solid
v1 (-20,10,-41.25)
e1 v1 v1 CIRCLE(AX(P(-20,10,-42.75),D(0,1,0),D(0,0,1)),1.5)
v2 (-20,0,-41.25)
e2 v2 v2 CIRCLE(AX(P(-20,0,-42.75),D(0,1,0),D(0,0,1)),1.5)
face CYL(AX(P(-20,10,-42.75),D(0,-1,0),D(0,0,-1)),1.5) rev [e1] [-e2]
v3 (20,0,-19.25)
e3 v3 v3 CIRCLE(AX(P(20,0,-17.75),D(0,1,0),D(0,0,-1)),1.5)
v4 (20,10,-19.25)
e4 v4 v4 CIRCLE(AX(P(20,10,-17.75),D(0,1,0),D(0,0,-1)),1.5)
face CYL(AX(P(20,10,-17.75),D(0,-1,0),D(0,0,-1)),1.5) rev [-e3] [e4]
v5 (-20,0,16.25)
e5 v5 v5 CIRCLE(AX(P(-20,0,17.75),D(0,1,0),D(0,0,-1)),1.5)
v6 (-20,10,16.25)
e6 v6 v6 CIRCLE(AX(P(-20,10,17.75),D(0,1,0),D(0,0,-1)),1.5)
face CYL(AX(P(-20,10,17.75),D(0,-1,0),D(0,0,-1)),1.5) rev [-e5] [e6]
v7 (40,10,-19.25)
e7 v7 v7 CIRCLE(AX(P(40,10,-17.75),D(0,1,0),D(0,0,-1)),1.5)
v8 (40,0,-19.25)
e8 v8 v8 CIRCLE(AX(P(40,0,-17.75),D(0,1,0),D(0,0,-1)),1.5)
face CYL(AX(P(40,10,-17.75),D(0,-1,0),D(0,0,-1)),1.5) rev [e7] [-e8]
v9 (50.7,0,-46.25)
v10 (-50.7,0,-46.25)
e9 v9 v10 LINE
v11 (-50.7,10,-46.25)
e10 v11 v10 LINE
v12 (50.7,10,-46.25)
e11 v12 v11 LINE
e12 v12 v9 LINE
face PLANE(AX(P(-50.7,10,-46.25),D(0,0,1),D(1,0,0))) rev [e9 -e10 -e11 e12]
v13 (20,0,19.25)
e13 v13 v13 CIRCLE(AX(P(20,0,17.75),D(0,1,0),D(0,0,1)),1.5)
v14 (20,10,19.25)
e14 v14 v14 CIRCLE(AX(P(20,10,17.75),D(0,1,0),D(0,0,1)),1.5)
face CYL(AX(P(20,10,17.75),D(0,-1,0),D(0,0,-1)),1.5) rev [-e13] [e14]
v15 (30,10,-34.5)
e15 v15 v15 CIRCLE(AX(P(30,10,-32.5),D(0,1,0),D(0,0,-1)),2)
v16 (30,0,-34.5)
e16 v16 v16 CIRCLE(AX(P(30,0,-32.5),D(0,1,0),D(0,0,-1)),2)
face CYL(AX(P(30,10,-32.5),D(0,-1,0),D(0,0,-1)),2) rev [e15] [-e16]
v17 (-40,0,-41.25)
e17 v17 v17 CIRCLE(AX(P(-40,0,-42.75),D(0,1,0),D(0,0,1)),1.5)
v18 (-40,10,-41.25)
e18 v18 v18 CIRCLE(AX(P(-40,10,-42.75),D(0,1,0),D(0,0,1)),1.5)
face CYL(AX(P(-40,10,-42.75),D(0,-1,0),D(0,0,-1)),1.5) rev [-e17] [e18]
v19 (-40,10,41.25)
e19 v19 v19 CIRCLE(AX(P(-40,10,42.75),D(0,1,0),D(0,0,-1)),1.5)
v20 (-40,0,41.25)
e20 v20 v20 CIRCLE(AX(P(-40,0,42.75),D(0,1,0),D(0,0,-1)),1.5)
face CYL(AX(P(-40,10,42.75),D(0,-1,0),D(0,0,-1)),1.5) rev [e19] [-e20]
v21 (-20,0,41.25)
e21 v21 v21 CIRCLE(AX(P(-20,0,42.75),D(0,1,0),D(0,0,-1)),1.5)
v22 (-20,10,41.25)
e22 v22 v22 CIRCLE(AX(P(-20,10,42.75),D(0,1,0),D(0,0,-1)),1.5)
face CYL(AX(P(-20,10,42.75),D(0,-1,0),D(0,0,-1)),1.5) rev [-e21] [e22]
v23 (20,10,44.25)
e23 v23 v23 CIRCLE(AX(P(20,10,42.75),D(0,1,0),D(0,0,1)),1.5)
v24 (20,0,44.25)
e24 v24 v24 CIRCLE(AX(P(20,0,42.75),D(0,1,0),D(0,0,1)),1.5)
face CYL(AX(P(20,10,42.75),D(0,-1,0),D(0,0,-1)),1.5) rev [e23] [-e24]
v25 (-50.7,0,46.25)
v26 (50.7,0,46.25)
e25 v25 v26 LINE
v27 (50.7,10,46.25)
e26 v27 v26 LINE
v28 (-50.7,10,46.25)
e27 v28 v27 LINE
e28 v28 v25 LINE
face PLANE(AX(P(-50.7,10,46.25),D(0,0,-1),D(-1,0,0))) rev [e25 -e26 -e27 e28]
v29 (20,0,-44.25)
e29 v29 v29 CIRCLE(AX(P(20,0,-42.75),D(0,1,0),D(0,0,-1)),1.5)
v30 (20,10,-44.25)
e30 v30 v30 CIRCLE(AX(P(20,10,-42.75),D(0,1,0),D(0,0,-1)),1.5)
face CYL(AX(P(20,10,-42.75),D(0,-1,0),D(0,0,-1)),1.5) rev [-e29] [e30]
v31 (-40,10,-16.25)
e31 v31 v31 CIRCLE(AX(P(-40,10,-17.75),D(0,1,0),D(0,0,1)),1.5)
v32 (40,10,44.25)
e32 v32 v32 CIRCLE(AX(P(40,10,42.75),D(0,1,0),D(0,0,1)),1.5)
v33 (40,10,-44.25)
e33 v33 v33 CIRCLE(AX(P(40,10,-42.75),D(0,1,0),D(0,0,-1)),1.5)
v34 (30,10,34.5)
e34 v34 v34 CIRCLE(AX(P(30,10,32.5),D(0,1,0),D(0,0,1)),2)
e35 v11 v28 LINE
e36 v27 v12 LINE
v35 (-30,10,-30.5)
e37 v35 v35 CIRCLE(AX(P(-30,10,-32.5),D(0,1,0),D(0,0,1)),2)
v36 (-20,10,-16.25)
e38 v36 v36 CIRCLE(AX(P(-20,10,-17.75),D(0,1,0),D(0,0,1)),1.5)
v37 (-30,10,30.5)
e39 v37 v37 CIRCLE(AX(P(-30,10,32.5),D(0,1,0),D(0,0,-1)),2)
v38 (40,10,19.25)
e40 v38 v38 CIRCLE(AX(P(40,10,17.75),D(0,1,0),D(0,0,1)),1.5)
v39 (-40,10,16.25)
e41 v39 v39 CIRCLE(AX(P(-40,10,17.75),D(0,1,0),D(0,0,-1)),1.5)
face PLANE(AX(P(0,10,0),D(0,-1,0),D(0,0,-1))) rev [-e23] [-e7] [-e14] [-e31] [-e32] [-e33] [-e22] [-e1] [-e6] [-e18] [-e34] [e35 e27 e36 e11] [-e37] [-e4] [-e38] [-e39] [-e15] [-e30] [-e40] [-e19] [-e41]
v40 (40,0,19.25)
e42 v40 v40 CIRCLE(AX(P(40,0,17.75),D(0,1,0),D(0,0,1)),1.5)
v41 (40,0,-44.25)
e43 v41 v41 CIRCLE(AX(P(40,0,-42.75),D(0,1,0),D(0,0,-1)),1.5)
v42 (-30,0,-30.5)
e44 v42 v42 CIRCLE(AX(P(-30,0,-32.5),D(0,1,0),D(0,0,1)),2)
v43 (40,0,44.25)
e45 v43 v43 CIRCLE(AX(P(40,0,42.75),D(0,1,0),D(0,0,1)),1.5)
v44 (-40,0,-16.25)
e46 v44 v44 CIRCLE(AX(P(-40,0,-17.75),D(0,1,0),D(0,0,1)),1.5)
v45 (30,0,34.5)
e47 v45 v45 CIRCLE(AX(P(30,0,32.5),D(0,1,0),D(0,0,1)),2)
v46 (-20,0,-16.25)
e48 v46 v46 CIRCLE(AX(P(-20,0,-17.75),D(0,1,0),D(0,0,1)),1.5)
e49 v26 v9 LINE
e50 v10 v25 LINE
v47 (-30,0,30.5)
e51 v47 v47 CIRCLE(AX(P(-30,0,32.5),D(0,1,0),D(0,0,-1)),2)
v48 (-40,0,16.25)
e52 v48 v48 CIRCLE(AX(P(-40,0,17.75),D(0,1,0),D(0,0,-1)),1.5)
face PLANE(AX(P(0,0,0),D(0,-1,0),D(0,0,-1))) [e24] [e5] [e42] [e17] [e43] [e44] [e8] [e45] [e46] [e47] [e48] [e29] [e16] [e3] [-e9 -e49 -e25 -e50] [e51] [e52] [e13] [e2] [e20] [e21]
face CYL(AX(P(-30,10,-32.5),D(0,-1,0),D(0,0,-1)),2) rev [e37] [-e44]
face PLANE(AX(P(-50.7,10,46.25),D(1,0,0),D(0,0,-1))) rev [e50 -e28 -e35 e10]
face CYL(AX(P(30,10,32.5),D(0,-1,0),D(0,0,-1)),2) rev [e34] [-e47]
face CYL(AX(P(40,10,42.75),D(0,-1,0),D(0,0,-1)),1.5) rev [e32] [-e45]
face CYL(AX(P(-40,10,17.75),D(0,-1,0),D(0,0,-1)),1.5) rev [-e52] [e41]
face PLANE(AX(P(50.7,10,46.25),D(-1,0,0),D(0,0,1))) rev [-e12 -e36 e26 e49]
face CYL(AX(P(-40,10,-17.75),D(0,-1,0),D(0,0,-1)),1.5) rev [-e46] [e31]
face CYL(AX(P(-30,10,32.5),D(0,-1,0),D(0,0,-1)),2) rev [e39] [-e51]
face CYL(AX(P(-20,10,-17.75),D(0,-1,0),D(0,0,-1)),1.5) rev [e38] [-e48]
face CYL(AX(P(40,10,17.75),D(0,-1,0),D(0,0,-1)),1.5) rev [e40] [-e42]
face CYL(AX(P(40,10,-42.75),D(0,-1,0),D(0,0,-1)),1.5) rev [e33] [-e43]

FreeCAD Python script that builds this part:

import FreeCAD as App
import Part
import Sketcher
Q = App.Units.Quantity

doc = App.newDocument("Part")
body = doc.addObject("PartDesign::Body", "Body")

# Sketch on XZ plane
sketch1 = body.newObject("Sketcher::SketchObject", "Sketch")
sketch1.AttachmentSupport = (doc.getObject("XZ_Plane"), [""])
sketch1.MapMode = "FlatFace"
sketch1.addGeometry([
    Part.LineSegment(App.Vector(-50.7, -46.2, 0), App.Vector(-50.7, 46.2, 0)),  # 0
    Part.LineSegment(App.Vector(-50.7, 46.2, 0), App.Vector(50.7, 46.2, 0)),  # 1
    Part.LineSegment(App.Vector(50.7, 46.2, 0), App.Vector(50.7, -46.2, 0)),  # 2
    Part.LineSegment(App.Vector(50.7, -46.2, 0), App.Vector(-50.7, -46.2, 0)),  # 3
    Part.Circle(App.Vector(-40, 42.8, 0), App.Vector(0, 0, 1), 1.5),  # 4
    Part.Circle(App.Vector(-30, 32.5, 0), App.Vector(0, 0, 1), 2),  # 5
    Part.Circle(App.Vector(-20, 42.8, 0), App.Vector(0, 0, 1), 1.5),  # 6
    Part.Circle(App.Vector(-40, 17.8, 0), App.Vector(0, 0, 1), 1.5),  # 7
    Part.Circle(App.Vector(-20, 17.8, 0), App.Vector(0, 0, 1), 1.5),  # 8
    Part.Circle(App.Vector(20, 42.8, 0), App.Vector(0, 0, 1), 1.5),  # 9
    Part.Circle(App.Vector(40, 42.8, 0), App.Vector(0, 0, 1), 1.5),  # 10
    Part.Circle(App.Vector(30, 32.5, 0), App.Vector(0, 0, 1), 2),  # 11
    Part.Circle(App.Vector(20, 17.8, 0), App.Vector(0, 0, 1), 1.5),  # 12
    Part.Circle(App.Vector(40, 17.8, 0), App.Vector(0, 0, 1), 1.5),  # 13
    Part.Circle(App.Vector(-40, -17.8, 0), App.Vector(0, 0, 1), 1.5),  # 14
    Part.Circle(App.Vector(-20, -17.8, 0), App.Vector(0, 0, 1), 1.5),  # 15
    Part.Circle(App.Vector(-30, -32.5, 0), App.Vector(0, 0, 1), 2),  # 16
    Part.Circle(App.Vector(-40, -42.8, 0), App.Vector(0, 0, 1), 1.5),  # 17
    Part.Circle(App.Vector(-20, -42.8, 0), App.Vector(0, 0, 1), 1.5),  # 18
    Part.Circle(App.Vector(20, -17.8, 0), App.Vector(0, 0, 1), 1.5),  # 19
    Part.Circle(App.Vector(40, -17.8, 0), App.Vector(0, 0, 1), 1.5),  # 20
    Part.Circle(App.Vector(20, -42.8, 0), App.Vector(0, 0, 1), 1.5),  # 21
    Part.Circle(App.Vector(30, -32.5, 0), App.Vector(0, 0, 1), 2),  # 22
    Part.Circle(App.Vector(40, -42.8, 0), App.Vector(0, 0, 1), 1.5),  # 23
], False)
sketch1.addConstraint([
    Sketcher.Constraint("Coincident", 0, 2, 1, 1),
    Sketcher.Constraint("Coincident", 1, 2, 2, 1),
    Sketcher.Constraint("Coincident", 2, 2, 3, 1),
    Sketcher.Constraint("Coincident", 3, 2, 0, 1),
    Sketcher.Constraint("Vertical", 0),
    Sketcher.Constraint("Horizontal", 1),
    Sketcher.Constraint("Vertical", 2),
    Sketcher.Constraint("Horizontal", 3),
    Sketcher.Constraint("Equal", 4, 6),
    Sketcher.Constraint("Equal", 6, 7),
    Sketcher.Constraint("Equal", 7, 8),
    Sketcher.Constraint("Equal", 8, 9),
    Sketcher.Constraint("Equal", 9, 10),
    Sketcher.Constraint("Equal", 5, 11),
    Sketcher.Constraint("Equal", 10, 12),
    Sketcher.Constraint("Equal", 12, 13),
    Sketcher.Constraint("Equal", 13, 14),
    Sketcher.Constraint("Equal", 14, 15),
    Sketcher.Constraint("Equal", 11, 16),
    Sketcher.Constraint("Equal", 15, 17),
    Sketcher.Constraint("Equal", 17, 18),
    Sketcher.Constraint("Equal", 18, 19),
    Sketcher.Constraint("Equal", 19, 20),
    Sketcher.Constraint("Equal", 20, 21),
    Sketcher.Constraint("Equal", 16, 22),
    Sketcher.Constraint("Equal", 21, 23),
    Sketcher.Constraint("Symmetric", 13, 3, 14, 3, -1, 1),
    Sketcher.Constraint("Symmetric", 12, 3, 15, 3, -1, 1),
    Sketcher.Constraint("Symmetric", 11, 3, 16, 3, -1, 1),
    Sketcher.Constraint("Symmetric", 10, 3, 17, 3, -1, 1),
    Sketcher.Constraint("Symmetric", 9, 3, 18, 3, -1, 1),
    Sketcher.Constraint("Symmetric", 8, 3, 19, 3, -1, 1),
    Sketcher.Constraint("Symmetric", 7, 3, 20, 3, -1, 1),
    Sketcher.Constraint("Symmetric", 6, 3, 21, 3, -1, 1),
    Sketcher.Constraint("Symmetric", 5, 3, 22, 3, -1, 1),
    Sketcher.Constraint("Symmetric", 4, 3, 23, 3, -1, 1),
    Sketcher.Constraint("Symmetric", 0, 2, 2, 2, -1, 1),
    Sketcher.Constraint("Symmetric", 6, 3, 9, 3, -2),
    Sketcher.Constraint("Symmetric", 4, 3, 10, 3, -2),
    Sketcher.Constraint("Symmetric", 5, 3, 11, 3, -2),
    Sketcher.Constraint("Symmetric", 8, 3, 12, 3, -2),
    Sketcher.Constraint("Symmetric", 7, 3, 13, 3, -2),
    Sketcher.Constraint("Horizontal", 4, 3, 6, 3),
    Sketcher.Constraint("Horizontal", 7, 3, 8, 3),
    Sketcher.Constraint("Vertical", 4, 3, 7, 3),
    Sketcher.Constraint("Vertical", 6, 3, 8, 3),
    Sketcher.Constraint("Diameter", 4, Q("3 mm")),
    Sketcher.Constraint("Diameter", 5, Q("4 mm")),
    Sketcher.Constraint("DistanceX", 1, 1, 1, 2, Q("101.4 mm")),
    Sketcher.Constraint("DistanceY", 0, 1, 0, 2, Q("92.5 mm")),
    Sketcher.Constraint("DistanceX", 4, 3, -1, 1, Q("40 mm")),
    Sketcher.Constraint("DistanceX", 5, 3, -1, 1, Q("30 mm")),
    Sketcher.Constraint("DistanceX", 6, 3, -1, 1, Q("20 mm")),
    Sketcher.Constraint("DistanceY", 7, 3, 4, 3, Q("25 mm")),
    Sketcher.Constraint("DistanceY", 16, 3, 5, 3, Q("65 mm")),
    Sketcher.Constraint("DistanceY", 14, 3, 7, 3, Q("35.5 mm")),
])
pad1 = body.newObject("PartDesign::Pad", "Pad")
pad1.Profile = sketch1
pad1.Length = 10
pad1.Reversed = True

doc.recompute()
